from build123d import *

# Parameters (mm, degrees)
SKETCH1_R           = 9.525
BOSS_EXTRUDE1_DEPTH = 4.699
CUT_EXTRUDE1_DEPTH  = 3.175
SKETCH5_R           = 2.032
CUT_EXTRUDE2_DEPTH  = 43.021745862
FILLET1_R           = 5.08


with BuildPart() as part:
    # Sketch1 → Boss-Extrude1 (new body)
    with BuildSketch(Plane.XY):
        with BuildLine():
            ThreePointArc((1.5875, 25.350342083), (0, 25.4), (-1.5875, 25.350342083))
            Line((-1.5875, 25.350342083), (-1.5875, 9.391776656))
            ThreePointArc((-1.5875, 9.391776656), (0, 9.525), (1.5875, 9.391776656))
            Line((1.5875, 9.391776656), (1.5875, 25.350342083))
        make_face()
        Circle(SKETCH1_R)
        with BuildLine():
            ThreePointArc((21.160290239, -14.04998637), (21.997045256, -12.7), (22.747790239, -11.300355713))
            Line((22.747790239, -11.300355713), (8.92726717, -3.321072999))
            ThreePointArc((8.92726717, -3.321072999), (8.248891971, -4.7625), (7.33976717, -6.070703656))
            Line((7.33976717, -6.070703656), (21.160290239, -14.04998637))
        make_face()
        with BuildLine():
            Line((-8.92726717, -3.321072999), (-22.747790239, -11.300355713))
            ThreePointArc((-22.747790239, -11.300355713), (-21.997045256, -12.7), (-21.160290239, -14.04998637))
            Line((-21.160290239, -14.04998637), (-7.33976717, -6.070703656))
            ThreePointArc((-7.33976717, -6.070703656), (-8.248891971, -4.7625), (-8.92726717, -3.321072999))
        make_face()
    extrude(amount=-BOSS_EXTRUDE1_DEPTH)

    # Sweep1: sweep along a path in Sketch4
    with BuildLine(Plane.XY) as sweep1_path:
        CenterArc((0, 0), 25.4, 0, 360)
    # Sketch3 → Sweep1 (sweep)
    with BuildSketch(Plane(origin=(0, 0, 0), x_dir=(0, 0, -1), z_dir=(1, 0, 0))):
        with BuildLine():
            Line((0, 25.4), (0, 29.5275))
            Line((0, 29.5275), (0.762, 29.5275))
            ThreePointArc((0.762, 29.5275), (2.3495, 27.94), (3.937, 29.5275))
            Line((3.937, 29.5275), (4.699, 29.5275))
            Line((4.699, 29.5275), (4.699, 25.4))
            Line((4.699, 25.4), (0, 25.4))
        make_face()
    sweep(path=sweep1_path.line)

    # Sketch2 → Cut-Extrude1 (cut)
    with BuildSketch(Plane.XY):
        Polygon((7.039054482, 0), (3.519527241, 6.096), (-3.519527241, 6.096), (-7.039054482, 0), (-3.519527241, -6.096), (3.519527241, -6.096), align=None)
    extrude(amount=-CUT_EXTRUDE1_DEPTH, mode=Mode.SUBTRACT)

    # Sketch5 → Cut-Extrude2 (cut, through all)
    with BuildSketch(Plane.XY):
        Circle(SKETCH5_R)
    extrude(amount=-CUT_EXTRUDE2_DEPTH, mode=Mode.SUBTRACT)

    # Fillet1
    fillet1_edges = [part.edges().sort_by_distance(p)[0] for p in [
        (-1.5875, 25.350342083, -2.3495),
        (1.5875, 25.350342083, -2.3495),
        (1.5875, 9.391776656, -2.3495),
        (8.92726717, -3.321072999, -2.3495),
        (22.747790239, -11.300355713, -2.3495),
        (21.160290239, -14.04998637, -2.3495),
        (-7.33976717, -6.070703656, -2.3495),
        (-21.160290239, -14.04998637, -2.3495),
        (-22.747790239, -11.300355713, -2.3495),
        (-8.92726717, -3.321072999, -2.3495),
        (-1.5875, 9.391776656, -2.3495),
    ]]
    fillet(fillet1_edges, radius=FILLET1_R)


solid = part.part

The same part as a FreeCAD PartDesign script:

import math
import FreeCAD as App
import Part
import Sketcher

V = App.Vector
Q = App.Units.Quantity


def edges_at(feature, points):
    """Names of the edges that pass closest to the given points."""
    edges = feature.Shape.Edges
    near = lambda p: min(range(len(edges)), key=lambda i: edges[i].distToShape(Part.Vertex(*p))[0])
    return sorted({f"Edge{near(p) + 1}" for p in points})


def add_polygon(sketch, points):
    """Adds a closed chain of lines whose ends are joined by coincident constraints."""
    first, n = sketch.GeometryCount, len(points)
    for a, b in zip(points, points[1:] + points[:1]):
        sketch.addGeometry(Part.LineSegment(App.Vector(*a, 0), App.Vector(*b, 0)), False)
    for i in range(n):
        sketch.addConstraint(Sketcher.Constraint("Coincident", first + i, 2, first + (i + 1) % n, 1))

doc = App.newDocument("Part")
body = doc.addObject("PartDesign::Body", "Body")

# Sketch on XY plane
sketch1 = body.newObject("Sketcher::SketchObject", "Sketch")
sketch1.AttachmentSupport = (doc.getObject("XY_Plane"), [""])
sketch1.MapMode = "FlatFace"
sketch1.addGeometry([
    Part.ArcOfCircle(Part.Circle(V(0, 0, 0), V(0, 0, 1), 25.4), math.radians(86.416678), math.radians(93.583322)),  # 0
    Part.LineSegment(V(-1.5875, 25.350342, 0), V(-1.5875, 9.391777, 0)),  # 1
    Part.ArcOfCircle(Part.Circle(V(0, 0, 0), V(0, 0, 1), 9.525), math.radians(99.594068), math.radians(200.405932)),  # 2
    Part.LineSegment(V(-8.927267, -3.321073, 0), V(-22.74779, -11.300356, 0)),  # 3
    Part.ArcOfCircle(Part.Circle(V(0, 0, 0), V(0, 0, 1), 25.4), math.radians(-153.583322), math.radians(-146.416678)),  # 4
    Part.LineSegment(V(-21.16029, -14.049986, 0), V(-7.339767, -6.070704, 0)),  # 5
    Part.ArcOfCircle(Part.Circle(V(0, 0, 0), V(0, 0, 1), 9.525), math.radians(-140.405932), math.radians(-39.594068)),  # 6
    Part.LineSegment(V(7.339767, -6.070704, 0), V(21.16029, -14.049986, 0)),  # 7
    Part.ArcOfCircle(Part.Circle(V(0, 0, 0), V(0, 0, 1), 25.4), math.radians(-33.583322), math.radians(-26.416678)),  # 8
    Part.LineSegment(V(22.74779, -11.300356, 0), V(8.927267, -3.321073, 0)),  # 9
    Part.ArcOfCircle(Part.Circle(V(0, 0, 0), V(0, 0, 1), 9.525), math.radians(-20.405932), math.radians(80.405932)),  # 10
    Part.LineSegment(V(1.5875, 9.391777, 0), V(1.5875, 25.350342, 0)),  # 11
], False)
sketch1.addConstraint([
    Sketcher.Constraint("Coincident", 0, 2, 1, 1),
    Sketcher.Constraint("Coincident", 1, 2, 2, 1),
    Sketcher.Constraint("Coincident", 2, 2, 3, 1),
    Sketcher.Constraint("Coincident", 3, 2, 4, 1),
    Sketcher.Constraint("Coincident", 4, 2, 5, 1),
    Sketcher.Constraint("Coincident", 5, 2, 6, 1),
    Sketcher.Constraint("Coincident", 6, 2, 7, 1),
    Sketcher.Constraint("Coincident", 7, 2, 8, 1),
    Sketcher.Constraint("Coincident", 8, 2, 9, 1),
    Sketcher.Constraint("Coincident", 9, 2, 10, 1),
    Sketcher.Constraint("Coincident", 10, 2, 11, 1),
    Sketcher.Constraint("Coincident", 11, 2, 0, 1),
    Sketcher.Constraint("Vertical", 1),
    Sketcher.Constraint("Vertical", 11),
    Sketcher.Constraint("Coincident", 0, 3, -1, 1),
    Sketcher.Constraint("Coincident", 2, 3, -1, 1),
    Sketcher.Constraint("Coincident", 4, 3, -1, 1),
    Sketcher.Constraint("Coincident", 6, 3, -1, 1),
    Sketcher.Constraint("Coincident", 8, 3, -1, 1),
    Sketcher.Constraint("Coincident", 10, 3, -1, 1),
    Sketcher.Constraint("Equal", 0, 4),
    Sketcher.Constraint("Equal", 2, 6),
    Sketcher.Constraint("Equal", 4, 8),
    Sketcher.Constraint("Equal", 6, 10),
    Sketcher.Constraint("Parallel", 3, 5),
    Sketcher.Constraint("Parallel", 7, 9),
    Sketcher.Constraint("Horizontal", 5, 2, 6, 2),
    Sketcher.Constraint("Horizontal", 4, 2, 7, 2),
    Sketcher.Constraint("Horizontal", 3, 2, 8, 2),
    Sketcher.Constraint("Horizontal", 1, 2, 10, 2),
    Sketcher.Constraint("Equal", 3, 5),
    Sketcher.Constraint("Radius", 0, Q("1 in")),
    Sketcher.Constraint("Angle", 3, Q("-150 deg")),
    Sketcher.Constraint("Radius", 2, Q("0.375 in")),
    Sketcher.Constraint("DistanceX", 0, 2, -1, 1, Q("0.0625 in")),
    Sketcher.Constraint("DistanceX", 3, 2, 4, 2, Q("0.0625 in")),
])
pad1 = body.newObject("PartDesign::Pad", "Pad")
pad1.Profile = sketch1
pad1.Length = Q("0.185 in")
pad1.Reversed = True

# Sketch on YZ plane
sketch2 = body.newObject("Sketcher::SketchObject", "Sketch001")
sketch2.AttachmentSupport = (doc.getObject("YZ_Plane"), [""])
sketch2.MapMode = "FlatFace"
sketch2.addGeometry([
    Part.LineSegment(V(29.5275, 0, 0), V(25.4, 0, 0)),  # 0
    Part.LineSegment(V(25.4, 0, 0), V(25.4, -4.699, 0)),  # 1
    Part.LineSegment(V(25.4, -4.699, 0), V(29.5275, -4.699, 0)),  # 2
    Part.LineSegment(V(29.5275, -4.699, 0), V(29.5275, -3.937, 0)),  # 3
    Part.ArcOfCircle(Part.Circle(V(29.5275, -2.3495, 0), V(0, 0, 1), 1.5875), math.radians(90), math.radians(270)),  # 4
    Part.LineSegment(V(29.5275, -0.762, 0), V(29.5275, 0, 0)),  # 5
], False)
sketch2.addConstraint([
    Sketcher.Constraint("Coincident", 0, 2, 1, 1),
    Sketcher.Constraint("Coincident", 1, 2, 2, 1),
    Sketcher.Constraint("Coincident", 2, 2, 3, 1),
    Sketcher.Constraint("Coincident", 3, 2, 4, 2),
    Sketcher.Constraint("Coincident", 4, 1, 5, 1),
    Sketcher.Constraint("Coincident", 5, 2, 0, 1),
    Sketcher.Constraint("Horizontal", 0),
    Sketcher.Constraint("Vertical", 1),
    Sketcher.Constraint("Horizontal", 2),
    Sketcher.Constraint("Vertical", 3),
    Sketcher.Constraint("Vertical", 5),
    Sketcher.Constraint("PointOnObject", 0, 2, -1),
    Sketcher.Constraint("Vertical", 4, 3, 2, 2),
    Sketcher.Constraint("Vertical", 3, 2, 4, 1),
    Sketcher.Constraint("Equal", 3, 5),
    Sketcher.Constraint("DistanceX", -1, 1, 0, 2, Q("1 in")),
    Sketcher.Constraint("Radius", 4, Q("0.0625 in")),
    Sketcher.Constraint("DistanceY", 3, 1, 3, 2, Q("0.03 in")),
    Sketcher.Constraint("DistanceX", 0, 2, 0, 1, Q("0.1625 in")),
])

# Sketch on XY plane
sketch3 = body.newObject("Sketcher::SketchObject", "Sketch002")
sketch3.AttachmentSupport = (doc.getObject("XY_Plane"), [""])
sketch3.MapMode = "FlatFace"
sketch3.addGeometry(Part.Circle(V(0, 0, 0), V(0, 0, 1), 25.4), False)
sketch3.addConstraint([
    Sketcher.Constraint("Coincident", 0, 3, -1, 1),
    Sketcher.Constraint("Diameter", 0, Q("2 in")),
])
doc.recompute()

additivepipe = body.newObject("PartDesign::AdditivePipe", "AdditivePipe")
additivepipe.Profile = sketch2
additivepipe.Spine = (sketch3, ["Edge1"])

# Sketch on XY plane
sketch4 = body.newObject("Sketcher::SketchObject", "Sketch003")
sketch4.AttachmentSupport = (doc.getObject("XY_Plane"), [""])
sketch4.MapMode = "FlatFace"
add_polygon(sketch4, [(7.039054, 0), (3.519527, 6.096), (-3.519527, 6.096), (-7.039054, 0), (-3.519527, -6.096), (3.519527, -6.096)])  # lines 0-5
sketch4.addConstraint([
    Sketcher.Constraint("Horizontal", 1),
    Sketcher.Constraint("Horizontal", 4),
    Sketcher.Constraint("Symmetric", 0, 2, 3, 2, -1, 1),
    Sketcher.Constraint("Symmetric", 2, 2, 5, 2, -1, 1),
    Sketcher.Constraint("PointOnObject", 2, 2, -1),
    Sketcher.Constraint("Parallel", 2, 5),
    Sketcher.Constraint("Vertical", 1, 2, 3, 2),
    Sketcher.Constraint("Angle", 0, Q("120 deg")),
    Sketcher.Constraint("DistanceY", -1, 1, 0, 2, Q("0.24 in")),
    Sketcher.Constraint("DistanceX", 1, 2, 1, 1, Q("7.039054 mm")),
])
pocket1 = body.newObject("PartDesign::Pocket", "Pocket")
pocket1.Profile = sketch4
pocket1.Length = Q("0.125 in")

# Sketch on XY plane
sketch5 = body.newObject("Sketcher::SketchObject", "Sketch004")
sketch5.AttachmentSupport = (doc.getObject("XY_Plane"), [""])
sketch5.MapMode = "FlatFace"
sketch5.addGeometry(Part.Circle(V(0, 0, 0), V(0, 0, 1), 2.032), False)
sketch5.addConstraint([
    Sketcher.Constraint("Coincident", 0, 3, -1, 1),
    Sketcher.Constraint("Diameter", 0, Q("0.16 in")),
])
pocket2 = body.newObject("PartDesign::Pocket", "Pocket001")
pocket2.Profile = sketch5
pocket2.Type = "ThroughAll"
doc.recompute()

fillet = body.newObject("PartDesign::Fillet", "Fillet")
fillet.Base = (pocket2, edges_at(pocket2, [
    (-1.587, 25.35, -2.349),
    (1.587, 25.35, -2.349),
    (1.587, 9.392, -2.349),
    (8.927, -3.321, -2.349),
    (22.748, -11.3, -2.349),
    (21.16, -14.05, -2.349),
    (-7.34, -6.071, -2.349),
    (-21.16, -14.05, -2.349),
    (-22.748, -11.3, -2.349),
    (-8.927, -3.321, -2.349),
    (-1.587, 9.392, -2.349),
]))
fillet.Radius = Q("0.2 in")

doc.recompute()
